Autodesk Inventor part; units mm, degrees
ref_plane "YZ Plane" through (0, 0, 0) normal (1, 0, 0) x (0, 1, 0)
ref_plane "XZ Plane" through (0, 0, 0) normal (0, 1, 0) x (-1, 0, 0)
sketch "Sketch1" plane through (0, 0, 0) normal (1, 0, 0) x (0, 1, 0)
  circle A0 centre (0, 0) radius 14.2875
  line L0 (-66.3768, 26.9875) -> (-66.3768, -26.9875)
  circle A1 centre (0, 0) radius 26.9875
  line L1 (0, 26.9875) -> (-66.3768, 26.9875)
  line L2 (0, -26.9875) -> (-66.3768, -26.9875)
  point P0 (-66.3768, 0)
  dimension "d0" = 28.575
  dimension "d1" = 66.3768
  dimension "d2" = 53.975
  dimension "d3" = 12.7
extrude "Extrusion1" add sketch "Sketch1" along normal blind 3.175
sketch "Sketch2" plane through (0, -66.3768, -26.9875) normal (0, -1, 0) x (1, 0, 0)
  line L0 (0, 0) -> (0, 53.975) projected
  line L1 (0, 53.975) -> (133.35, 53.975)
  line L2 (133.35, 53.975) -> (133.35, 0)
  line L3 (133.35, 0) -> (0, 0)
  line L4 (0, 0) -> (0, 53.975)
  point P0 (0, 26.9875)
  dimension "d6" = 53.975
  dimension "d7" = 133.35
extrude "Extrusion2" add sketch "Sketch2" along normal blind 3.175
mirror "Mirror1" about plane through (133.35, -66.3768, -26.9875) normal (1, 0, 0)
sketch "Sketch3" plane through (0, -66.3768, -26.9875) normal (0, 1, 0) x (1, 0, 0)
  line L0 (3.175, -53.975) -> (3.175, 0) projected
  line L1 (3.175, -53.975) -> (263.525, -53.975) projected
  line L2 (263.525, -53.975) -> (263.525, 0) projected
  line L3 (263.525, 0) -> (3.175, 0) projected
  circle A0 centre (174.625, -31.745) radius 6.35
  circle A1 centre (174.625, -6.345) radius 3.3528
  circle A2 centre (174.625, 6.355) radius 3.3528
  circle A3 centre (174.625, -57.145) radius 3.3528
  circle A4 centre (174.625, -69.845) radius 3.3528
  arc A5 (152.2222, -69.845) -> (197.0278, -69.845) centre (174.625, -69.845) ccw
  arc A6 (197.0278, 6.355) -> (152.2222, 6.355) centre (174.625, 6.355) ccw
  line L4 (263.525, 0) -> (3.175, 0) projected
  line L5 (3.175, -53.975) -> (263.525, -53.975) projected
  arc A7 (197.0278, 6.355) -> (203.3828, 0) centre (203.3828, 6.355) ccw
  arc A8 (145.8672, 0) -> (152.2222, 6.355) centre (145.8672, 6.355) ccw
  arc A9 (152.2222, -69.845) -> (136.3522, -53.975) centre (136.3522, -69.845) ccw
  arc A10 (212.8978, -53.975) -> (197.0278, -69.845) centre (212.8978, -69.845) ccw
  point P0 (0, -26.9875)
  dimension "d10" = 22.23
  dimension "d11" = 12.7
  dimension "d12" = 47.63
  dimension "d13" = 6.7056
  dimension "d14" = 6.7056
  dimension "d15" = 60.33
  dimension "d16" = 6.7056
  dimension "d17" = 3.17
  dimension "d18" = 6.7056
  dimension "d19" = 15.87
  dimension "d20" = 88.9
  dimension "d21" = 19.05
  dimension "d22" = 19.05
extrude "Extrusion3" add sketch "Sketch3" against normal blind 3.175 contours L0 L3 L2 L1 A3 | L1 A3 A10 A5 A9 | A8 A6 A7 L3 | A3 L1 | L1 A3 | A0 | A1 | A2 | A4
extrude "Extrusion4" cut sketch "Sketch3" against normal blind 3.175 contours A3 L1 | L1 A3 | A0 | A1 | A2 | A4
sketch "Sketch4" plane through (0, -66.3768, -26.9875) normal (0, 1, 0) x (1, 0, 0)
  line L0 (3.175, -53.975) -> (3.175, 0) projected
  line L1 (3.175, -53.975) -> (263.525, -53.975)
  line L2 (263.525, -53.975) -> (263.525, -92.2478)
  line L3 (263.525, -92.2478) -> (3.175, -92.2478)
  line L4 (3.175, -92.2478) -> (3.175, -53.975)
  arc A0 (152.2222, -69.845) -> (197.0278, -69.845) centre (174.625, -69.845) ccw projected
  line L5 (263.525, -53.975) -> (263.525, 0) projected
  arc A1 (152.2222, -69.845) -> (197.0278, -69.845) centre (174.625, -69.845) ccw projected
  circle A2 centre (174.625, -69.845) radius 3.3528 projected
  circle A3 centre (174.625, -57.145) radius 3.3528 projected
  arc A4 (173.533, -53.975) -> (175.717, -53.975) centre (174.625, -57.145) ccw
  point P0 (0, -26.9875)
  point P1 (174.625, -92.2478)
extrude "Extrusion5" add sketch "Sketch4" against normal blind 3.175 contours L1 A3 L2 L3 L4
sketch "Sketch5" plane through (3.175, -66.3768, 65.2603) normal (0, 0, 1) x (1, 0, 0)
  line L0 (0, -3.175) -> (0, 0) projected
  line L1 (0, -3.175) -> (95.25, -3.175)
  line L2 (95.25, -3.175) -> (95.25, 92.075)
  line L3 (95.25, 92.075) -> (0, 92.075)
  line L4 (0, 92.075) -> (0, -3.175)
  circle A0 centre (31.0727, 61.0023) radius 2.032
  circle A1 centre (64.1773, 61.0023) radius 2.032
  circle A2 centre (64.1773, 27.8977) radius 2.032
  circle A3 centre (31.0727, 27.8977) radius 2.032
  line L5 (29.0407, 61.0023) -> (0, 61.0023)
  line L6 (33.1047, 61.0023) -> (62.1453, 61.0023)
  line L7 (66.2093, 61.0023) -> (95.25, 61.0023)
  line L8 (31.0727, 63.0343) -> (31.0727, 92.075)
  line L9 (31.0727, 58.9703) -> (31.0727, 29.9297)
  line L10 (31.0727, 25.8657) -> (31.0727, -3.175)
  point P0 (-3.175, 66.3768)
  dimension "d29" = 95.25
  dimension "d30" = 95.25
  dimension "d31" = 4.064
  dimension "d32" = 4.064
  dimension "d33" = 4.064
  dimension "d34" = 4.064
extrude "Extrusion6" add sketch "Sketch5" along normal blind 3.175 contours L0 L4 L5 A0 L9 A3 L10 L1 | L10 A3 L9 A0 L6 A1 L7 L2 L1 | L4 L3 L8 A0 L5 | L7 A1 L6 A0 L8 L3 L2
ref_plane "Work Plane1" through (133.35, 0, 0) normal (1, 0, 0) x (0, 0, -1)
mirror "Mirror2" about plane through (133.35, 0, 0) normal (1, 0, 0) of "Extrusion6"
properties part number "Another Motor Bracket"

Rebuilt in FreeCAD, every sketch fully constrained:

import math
import FreeCAD as App
import Part
import Sketcher

V = App.Vector
Q = App.Units.Quantity


def add_polygon(sketch, points):
    """Adds a closed chain of lines whose ends are joined by coincident constraints."""
    first, n = sketch.GeometryCount, len(points)
    for a, b in zip(points, points[1:] + points[:1]):
        sketch.addGeometry(Part.LineSegment(App.Vector(*a, 0), App.Vector(*b, 0)), False)
    for i in range(n):
        sketch.addConstraint(Sketcher.Constraint("Coincident", first + i, 2, first + (i + 1) % n, 1))

doc = App.newDocument("Part")
params = doc.addObject("Spreadsheet::Sheet", "Params")
for row, (alias, value) in enumerate([
    ("sketch1_diameter", "1.125 in"),
    ("sketch1_radius", "1.0625 in"),
    ("pad1_length", "0.125 in"),
    ("sketch2_width", "5.25 in"),
    ("sketch2_height", "2.125 in"),
    ("pad2_length", "0.125 in"),
    ("sketch3_radius", "0.882 in"),
    ("pad3_length", "0.125 in"),
    ("sketch4_diameter", "0.5 in"),
    ("sketch4_diameter2", "0.264 in"),
    ("pocket1_length", "0.125 in"),
    ("sketch5_diameter", "0.264 in"),
    ("sketch5_width", "10.25 in"),
    ("sketch5_width2", "6.707 in"),
    ("pad4_length", "0.125 in"),
    ("sketch6_diameter", "0.16 in"),
    ("sketch6_width", "3.75 in"),
    ("pad5_length", "0.125 in"),
], start=1):
    params.set(f"A{row}", alias)
    params.set(f"B{row}", "=" + value)
    params.setAlias(f"B{row}", alias)

body = doc.addObject("PartDesign::Body", "Body")

# Sketch on YZ plane
sketch1 = body.newObject("Sketcher::SketchObject", "Sketch")
sketch1.AttachmentSupport = (doc.getObject("YZ_Plane"), [""])
sketch1.MapMode = "FlatFace"
sketch1.addGeometry(Part.LineSegment(V(0, 27, 0), V(-66, 27, 0)), False)
sketch1.addGeometry(Part.LineSegment(V(-66, 27, 0), V(-66, -27, 0)), False)
sketch1.addGeometry(Part.LineSegment(V(-66, -27, 0), V(0, -27, 0)), False)
sketch1.addGeometry(Part.ArcOfCircle(Part.Circle(V(0, 0, 0), V(0, 0, 1), 27), math.radians(-90), math.radians(90)), False)
sketch1.addGeometry(Part.Circle(V(0, 0, 0), V(0, 0, 1), 14), False)
sketch1.addConstraint(Sketcher.Constraint("Coincident", 0, 2, 1, 1))
sketch1.addConstraint(Sketcher.Constraint("Coincident", 1, 2, 2, 1))
sketch1.addConstraint(Sketcher.Constraint("Tangent", 2, 2, 3, 1))
sketch1.addConstraint(Sketcher.Constraint("Tangent", 3, 2, 0, 1))
sketch1.addConstraint(Sketcher.Constraint("Horizontal", 0))
sketch1.addConstraint(Sketcher.Constraint("Vertical", 1))
sketch1.addConstraint(Sketcher.Constraint("Horizontal", 2))
sketch1.addConstraint(Sketcher.Constraint("Coincident", 3, 3, -1, 1))
sketch1.addConstraint(Sketcher.Constraint("Coincident", 4, 3, -1, 1))
sketch1.addConstraint(Sketcher.Constraint("Diameter", 4, Q("1.125 in")))
sketch1.addConstraint(Sketcher.Constraint("Radius", 3, Q("1.0625 in")))
sketch1.addConstraint(Sketcher.Constraint("DistanceX", 0, 2, 0, 1, Q("66.3768 mm")))
sketch1.setExpression("Constraints[9]", "Params.sketch1_diameter")
sketch1.setExpression("Constraints[10]", "Params.sketch1_radius")
pad1 = body.newObject("PartDesign::Pad", "Pad")
pad1.Profile = sketch1
pad1.setExpression("Length", "Params.pad1_length")

# Sketch on XZ plane
sketch2 = body.newObject("Sketcher::SketchObject", "Sketch001")
sketch2.AttachmentSupport = (doc.getObject("XZ_Plane"), [""])
sketch2.MapMode = "FlatFace"
sketch2.AttachmentOffset = App.Placement(V(0, 0, 66.3768), App.Rotation())
add_polygon(sketch2, [(0, 27), (0, -27), (133, -27), (133, 27)])  # lines 0-3
sketch2.addConstraint(Sketcher.Constraint("Vertical", 0))
sketch2.addConstraint(Sketcher.Constraint("Horizontal", 1))
sketch2.addConstraint(Sketcher.Constraint("Vertical", 2))
sketch2.addConstraint(Sketcher.Constraint("Horizontal", 3))
sketch2.addConstraint(Sketcher.Constraint("Symmetric", 0, 2, 3, 2, -1, 1))
sketch2.addConstraint(Sketcher.Constraint("DistanceX", 1, 1, 1, 2, Q("5.25 in")))
sketch2.addConstraint(Sketcher.Constraint("DistanceY", 0, 2, 0, 1, Q("2.125 in")))
sketch2.setExpression("Constraints[9]", "Params.sketch2_width")
sketch2.setExpression("Constraints[10]", "Params.sketch2_height")
pad2 = body.newObject("PartDesign::Pad", "Pad001")
pad2.Profile = sketch2
pad2.setExpression("Length", "Params.pad2_length")
doc.recompute()

datumplane = body.newObject("PartDesign::Plane", "DatumPlane")
datumplane.AttachmentSupport = (doc.getObject("YZ_Plane"), [""])
datumplane.MapMode = "FlatFace"
datumplane.AttachmentOffset = App.Placement(V(0, 0, 5.25 * 25.4), App.Rotation())
mirrored = body.newObject("PartDesign::Mirrored", "Mirrored")
mirrored.TransformMode = "Transform body"
mirrored.MirrorPlane = (datumplane, [""])
body.Tip = mirrored

# Sketch on XZ plane
sketch3 = body.newObject("Sketcher::SketchObject", "Sketch002")
sketch3.AttachmentSupport = (doc.getObject("XZ_Plane"), [""])
sketch3.MapMode = "FlatFace"
sketch3.AttachmentOffset = App.Placement(V(0, 0, 66.3768), App.Rotation())
sketch3.addGeometry(Part.LineSegment(V(3, -27, 0), V(3, 27, 0)), False)
sketch3.addGeometry(Part.LineSegment(V(3, 27, 0), V(136, 27, 0)), False)
sketch3.addGeometry(Part.ArcOfCircle(Part.Circle(V(136, 43, 0), V(0, 0, 1), 16), math.radians(-90), math.radians(0)), False)
sketch3.addGeometry(Part.ArcOfCircle(Part.Circle(V(175, 43, 0), V(0, 0, 1), 22), math.radians(0), math.radians(180)), False)
sketch3.addGeometry(Part.ArcOfCircle(Part.Circle(V(213, 43, 0), V(0, 0, 1), 16), math.radians(180), math.radians(270)), False)
sketch3.addGeometry(Part.LineSegment(V(213, 27, 0), V(264, 27, 0)), False)
sketch3.addGeometry(Part.LineSegment(V(264, 27, 0), V(264, -27, 0)), False)
sketch3.addGeometry(Part.LineSegment(V(264, -27, 0), V(203, -27, 0)), False)
sketch3.addGeometry(Part.ArcOfCircle(Part.Circle(V(203, -33, 0), V(0, 0, 1), 6), math.radians(90), math.radians(180)), False)
sketch3.addGeometry(Part.ArcOfCircle(Part.Circle(V(175, -33, 0), V(0, 0, 1), 22), math.radians(180), math.radians(360)), False)
sketch3.addGeometry(Part.ArcOfCircle(Part.Circle(V(146, -33, 0), V(0, 0, 1), 6), math.radians(0), math.radians(90)), False)
sketch3.addGeometry(Part.LineSegment(V(146, -27, 0), V(3, -27, 0)), False)
sketch3.addConstraint(Sketcher.Constraint("Coincident", 0, 2, 1, 1))
sketch3.addConstraint(Sketcher.Constraint("Tangent", 1, 2, 2, 1))
sketch3.addConstraint(Sketcher.Constraint("Tangent", 2, 2, 3, 2))
sketch3.addConstraint(Sketcher.Constraint("Tangent", 3, 1, 4, 1))
sketch3.addConstraint(Sketcher.Constraint("Tangent", 4, 2, 5, 1))
sketch3.addConstraint(Sketcher.Constraint("Coincident", 5, 2, 6, 1))
sketch3.addConstraint(Sketcher.Constraint("Coincident", 6, 2, 7, 1))
sketch3.addConstraint(Sketcher.Constraint("Tangent", 7, 2, 8, 1))
sketch3.addConstraint(Sketcher.Constraint("Tangent", 8, 2, 9, 2))
sketch3.addConstraint(Sketcher.Constraint("Tangent", 9, 1, 10, 1))
sketch3.addConstraint(Sketcher.Constraint("Tangent", 10, 2, 11, 1))
sketch3.addConstraint(Sketcher.Constraint("Coincident", 11, 2, 0, 1))
sketch3.addConstraint(Sketcher.Constraint("Vertical", 0))
sketch3.addConstraint(Sketcher.Constraint("Horizontal", 1))
sketch3.addConstraint(Sketcher.Constraint("Horizontal", 5))
sketch3.addConstraint(Sketcher.Constraint("Vertical", 6))
sketch3.addConstraint(Sketcher.Constraint("Horizontal", 7))
sketch3.addConstraint(Sketcher.Constraint("Horizontal", 11))
sketch3.addConstraint(Sketcher.Constraint("Equal", 2, 4))
sketch3.addConstraint(Sketcher.Constraint("Equal", 3, 9))
sketch3.addConstraint(Sketcher.Constraint("Equal", 8, 10))
sketch3.addConstraint(Sketcher.Constraint("Horizontal", 2, 3, 3, 3))
sketch3.addConstraint(Sketcher.Constraint("Horizontal", 3, 3, 4, 3))
sketch3.addConstraint(Sketcher.Constraint("Horizontal", 8, 3, 9, 3))
sketch3.addConstraint(Sketcher.Constraint("Horizontal", 9, 3, 10, 3))
sketch3.addConstraint(Sketcher.Constraint("Vertical", 3, 3, 9, 3))
sketch3.addConstraint(Sketcher.Constraint("Radius", 2, Q("0.6248 in")))
sketch3.addConstraint(Sketcher.Constraint("DistanceX", 3, 3, 5, 2, Q("3.5 in")))
sketch3.addConstraint(Sketcher.Constraint("Radius", 3, Q("0.882 in")))
sketch3.addConstraint(Sketcher.Constraint("DistanceY", 8, 3, 4, 3, Q("3 in")))
sketch3.addConstraint(Sketcher.Constraint("Radius", 8, Q("0.2502 in")))
sketch3.addConstraint(Sketcher.Constraint("DistanceX", 0, 2, 3, 3, Q("6.75 in")))
sketch3.addConstraint(Sketcher.Constraint("DistanceX", -1, 1, 3, 3, Q("6.875 in")))
sketch3.addConstraint(Sketcher.Constraint("DistanceY", -1, 1, 0, 2, Q("1.0625 in")))
sketch3.setExpression("Constraints[28]", "Params.sketch3_radius")
pad3 = body.newObject("PartDesign::Pad", "Pad002")
pad3.Profile = sketch3
pad3.setExpression("Length", "Params.pad3_length")

# Sketch on XZ plane
sketch4 = body.newObject("Sketcher::SketchObject", "Sketch003")
sketch4.AttachmentSupport = (doc.getObject("XZ_Plane"), [""])
sketch4.MapMode = "FlatFace"
sketch4.AttachmentOffset = App.Placement(V(0, 0, 66.3768), App.Rotation())
sketch4.addGeometry(Part.Circle(V(174.6, 30.2, 0), V(0, 0, 1), 3.4), False)
sketch4.addGeometry(Part.Circle(V(174.6, 4.8, 0), V(0, 0, 1), 6.3), False)
sketch4.addGeometry(Part.Circle(V(174.6, -20.6, 0), V(0, 0, 1), 3.4), False)
sketch4.addGeometry(Part.Circle(V(174.6, -33.3, 0), V(0, 0, 1), 3.4), False)
sketch4.addGeometry(Part.Circle(V(174.6, 42.9, 0), V(0, 0, 1), 3.4), False)
sketch4.addConstraint(Sketcher.Constraint("Equal", 0, 2))
sketch4.addConstraint(Sketcher.Constraint("Equal", 2, 3))
sketch4.addConstraint(Sketcher.Constraint("Equal", 3, 4))
sketch4.addConstraint(Sketcher.Constraint("Vertical", 0, 3, 1, 3))
sketch4.addConstraint(Sketcher.Constraint("Vertical", 1, 3, 2, 3))
sketch4.addConstraint(Sketcher.Constraint("Vertical", 2, 3, 3, 3))
sketch4.addConstraint(Sketcher.Constraint("Vertical", 3, 3, 4, 3))
sketch4.addConstraint(Sketcher.Constraint("Diameter", 1, Q("0.5 in")))
sketch4.addConstraint(Sketcher.Constraint("Diameter", 0, Q("0.264 in")))
sketch4.addConstraint(Sketcher.Constraint("DistanceY", 3, 3, 2, 3, Q("0.5 in")))
sketch4.addConstraint(Sketcher.Constraint("DistanceY", 0, 3, 4, 3, Q("0.5 in")))
sketch4.addConstraint(Sketcher.Constraint("DistanceY", 1, 3, 0, 3, Q("1 in")))
sketch4.addConstraint(Sketcher.Constraint("DistanceY", 2, 3, 1, 3, Q("1 in")))
sketch4.addConstraint(Sketcher.Constraint("DistanceX", -1, 1, 0, 3, Q("6.875 in")))
sketch4.addConstraint(Sketcher.Constraint("DistanceY", -1, 1, 0, 3, Q("1.1873 in")))
sketch4.setExpression("Constraints[7]", "Params.sketch4_diameter")
sketch4.setExpression("Constraints[8]", "Params.sketch4_diameter2")
pocket1 = body.newObject("PartDesign::Pocket", "Pocket")
pocket1.Profile = sketch4
pocket1.setExpression("Length", "Params.pocket1_length")
pocket1.Reversed = True

# Sketch on XZ plane
sketch5 = body.newObject("Sketcher::SketchObject", "Sketch004")
sketch5.AttachmentSupport = (doc.getObject("XZ_Plane"), [""])
sketch5.MapMode = "FlatFace"
sketch5.AttachmentOffset = App.Placement(V(0, 0, 66.3768), App.Rotation())
sketch5.addGeometry(Part.LineSegment(V(173.5, 27, 0), V(3.2, 27, 0)), False)
sketch5.addGeometry(Part.LineSegment(V(3.2, 27, 0), V(3.2, 65.3, 0)), False)
sketch5.addGeometry(Part.LineSegment(V(3.2, 65.3, 0), V(263.5, 65.3, 0)), False)
sketch5.addGeometry(Part.LineSegment(V(263.5, 65.3, 0), V(263.5, 27, 0)), False)
sketch5.addGeometry(Part.LineSegment(V(263.5, 27, 0), V(175.7, 27, 0)), False)
sketch5.addGeometry(Part.ArcOfCircle(Part.Circle(V(174.6, 30.2, 0), V(0, 0, 1), 3.4), math.radians(-71), math.radians(251)), False)
sketch5.addGeometry(Part.Circle(V(174.6, 42.9, 0), V(0, 0, 1), 3.4), False)
sketch5.addConstraint(Sketcher.Constraint("Coincident", 0, 2, 1, 1))
sketch5.addConstraint(Sketcher.Constraint("Coincident", 1, 2, 2, 1))
sketch5.addConstraint(Sketcher.Constraint("Coincident", 2, 2, 3, 1))
sketch5.addConstraint(Sketcher.Constraint("Coincident", 3, 2, 4, 1))
sketch5.addConstraint(Sketcher.Constraint("Coincident", 4, 2, 5, 1))
sketch5.addConstraint(Sketcher.Constraint("Coincident", 5, 2, 0, 1))
sketch5.addConstraint(Sketcher.Constraint("Horizontal", 0))
sketch5.addConstraint(Sketcher.Constraint("Vertical", 1))
sketch5.addConstraint(Sketcher.Constraint("Horizontal", 2))
sketch5.addConstraint(Sketcher.Constraint("Vertical", 3))
sketch5.addConstraint(Sketcher.Constraint("Horizontal", 4))
sketch5.addConstraint(Sketcher.Constraint("Equal", 5, 6))
sketch5.addConstraint(Sketcher.Constraint("Horizontal", 0, 2, 3, 2))
sketch5.addConstraint(Sketcher.Constraint("Vertical", 5, 3, 6, 3))
sketch5.addConstraint(Sketcher.Constraint("Diameter", 6, Q("0.264 in")))
sketch5.addConstraint(Sketcher.Constraint("DistanceX", 2, 1, 2, 2, Q("10.25 in")))
sketch5.addConstraint(Sketcher.Constraint("DistanceY", 5, 3, 6, 3, Q("0.5 in")))
sketch5.addConstraint(Sketcher.Constraint("DistanceX", 6, 3, 2, 2, Q("3.5 in")))
sketch5.addConstraint(Sketcher.Constraint("DistanceX", 0, 2, 0, 1, Q("6.707 in")))
sketch5.addConstraint(Sketcher.Constraint("DistanceY", 1, 1, 1, 2, Q("1.5068 in")))
sketch5.addConstraint(Sketcher.Constraint("DistanceX", -1, 1, 5, 3, Q("6.875 in")))
sketch5.addConstraint(Sketcher.Constraint("DistanceY", -1, 1, 0, 2, Q("1.0625 in")))
sketch5.setExpression("Constraints[14]", "Params.sketch5_diameter")
sketch5.setExpression("Constraints[15]", "Params.sketch5_width")
sketch5.setExpression("Constraints[18]", "Params.sketch5_width2")
pad4 = body.newObject("PartDesign::Pad", "Pad003")
pad4.Profile = sketch5
pad4.setExpression("Length", "Params.pad4_length")

# Sketch on XY plane
sketch6 = body.newObject("Sketcher::SketchObject", "Sketch005")
sketch6.AttachmentSupport = (doc.getObject("XY_Plane"), [""])
sketch6.MapMode = "FlatFace"
sketch6.AttachmentOffset = App.Placement(V(0, 0, 2.5693031 * 25.4), App.Rotation())
add_polygon(sketch6, [(3.2, -69.6), (98.4, -69.6), (98.4, 25.7), (3.2, 25.7)])  # lines 0-3
sketch6.addGeometry(Part.Circle(V(34.2, -5.4, 0), V(0, 0, 1), 2), False)  # 4
sketch6.addGeometry(Part.Circle(V(34.2, -38.5, 0), V(0, 0, 1), 2), False)  # 5
sketch6.addGeometry(Part.Circle(V(67.4, -38.5, 0), V(0, 0, 1), 2), False)  # 6
sketch6.addGeometry(Part.Circle(V(67.4, -5.4, 0), V(0, 0, 1), 2), False)  # 7
sketch6.addConstraint(Sketcher.Constraint("Horizontal", 0))
sketch6.addConstraint(Sketcher.Constraint("Vertical", 1))
sketch6.addConstraint(Sketcher.Constraint("Horizontal", 2))
sketch6.addConstraint(Sketcher.Constraint("Vertical", 3))
sketch6.addConstraint(Sketcher.Constraint("Equal", 4, 5))
sketch6.addConstraint(Sketcher.Constraint("Equal", 5, 6))
sketch6.addConstraint(Sketcher.Constraint("Equal", 6, 7))
sketch6.addConstraint(Sketcher.Constraint("Horizontal", 5, 3, 6, 3))
sketch6.addConstraint(Sketcher.Constraint("Horizontal", 4, 3, 7, 3))
sketch6.addConstraint(Sketcher.Constraint("Vertical", 4, 3, 5, 3))
sketch6.addConstraint(Sketcher.Constraint("Vertical", 6, 3, 7, 3))
sketch6.addConstraint(Sketcher.Constraint("Equal", 2, 1))
sketch6.addConstraint(Sketcher.Constraint("Diameter", 4, Q("0.16 in")))
sketch6.addConstraint(Sketcher.Constraint("DistanceX", 0, 1, 0, 2, Q("3.75 in")))
sketch6.addConstraint(Sketcher.Constraint("DistanceX", -1, 1, 0, 2, Q("3.875 in")))
sketch6.addConstraint(Sketcher.Constraint("DistanceY", 4, 3, -1, 1, Q("0.2116 in")))
sketch6.addConstraint(Sketcher.Constraint("DistanceX", -1, 1, 4, 3, Q("34.2477 mm")))
sketch6.addConstraint(Sketcher.Constraint("DistanceY", 5, 3, -1, 1, Q("38.479 mm")))
sketch6.addConstraint(Sketcher.Constraint("DistanceX", -1, 1, 6, 3, Q("67.3523 mm")))
sketch6.addConstraint(Sketcher.Constraint("DistanceY", 0, 2, -1, 1, Q("69.5518 mm")))
sketch6.setExpression("Constraints[16]", "Params.sketch6_diameter")
sketch6.setExpression("Constraints[17]", "Params.sketch6_width")
pad5 = body.newObject("PartDesign::Pad", "Pad004")
pad5.Profile = sketch6
pad5.setExpression("Length", "Params.pad5_length")
doc.recompute()

datumplane2 = body.newObject("PartDesign::Plane", "DatumPlane001")
datumplane2.AttachmentSupport = (doc.getObject("YZ_Plane"), [""])
datumplane2.MapMode = "FlatFace"
datumplane2.AttachmentOffset = App.Placement(V(0, 0, 5.25 * 25.4), App.Rotation())
mirrored2 = body.newObject("PartDesign::Mirrored", "Mirrored001")
mirrored2.Originals = [pad5]
mirrored2.MirrorPlane = (datumplane2, [""])
body.Tip = mirrored2

doc.recompute()
